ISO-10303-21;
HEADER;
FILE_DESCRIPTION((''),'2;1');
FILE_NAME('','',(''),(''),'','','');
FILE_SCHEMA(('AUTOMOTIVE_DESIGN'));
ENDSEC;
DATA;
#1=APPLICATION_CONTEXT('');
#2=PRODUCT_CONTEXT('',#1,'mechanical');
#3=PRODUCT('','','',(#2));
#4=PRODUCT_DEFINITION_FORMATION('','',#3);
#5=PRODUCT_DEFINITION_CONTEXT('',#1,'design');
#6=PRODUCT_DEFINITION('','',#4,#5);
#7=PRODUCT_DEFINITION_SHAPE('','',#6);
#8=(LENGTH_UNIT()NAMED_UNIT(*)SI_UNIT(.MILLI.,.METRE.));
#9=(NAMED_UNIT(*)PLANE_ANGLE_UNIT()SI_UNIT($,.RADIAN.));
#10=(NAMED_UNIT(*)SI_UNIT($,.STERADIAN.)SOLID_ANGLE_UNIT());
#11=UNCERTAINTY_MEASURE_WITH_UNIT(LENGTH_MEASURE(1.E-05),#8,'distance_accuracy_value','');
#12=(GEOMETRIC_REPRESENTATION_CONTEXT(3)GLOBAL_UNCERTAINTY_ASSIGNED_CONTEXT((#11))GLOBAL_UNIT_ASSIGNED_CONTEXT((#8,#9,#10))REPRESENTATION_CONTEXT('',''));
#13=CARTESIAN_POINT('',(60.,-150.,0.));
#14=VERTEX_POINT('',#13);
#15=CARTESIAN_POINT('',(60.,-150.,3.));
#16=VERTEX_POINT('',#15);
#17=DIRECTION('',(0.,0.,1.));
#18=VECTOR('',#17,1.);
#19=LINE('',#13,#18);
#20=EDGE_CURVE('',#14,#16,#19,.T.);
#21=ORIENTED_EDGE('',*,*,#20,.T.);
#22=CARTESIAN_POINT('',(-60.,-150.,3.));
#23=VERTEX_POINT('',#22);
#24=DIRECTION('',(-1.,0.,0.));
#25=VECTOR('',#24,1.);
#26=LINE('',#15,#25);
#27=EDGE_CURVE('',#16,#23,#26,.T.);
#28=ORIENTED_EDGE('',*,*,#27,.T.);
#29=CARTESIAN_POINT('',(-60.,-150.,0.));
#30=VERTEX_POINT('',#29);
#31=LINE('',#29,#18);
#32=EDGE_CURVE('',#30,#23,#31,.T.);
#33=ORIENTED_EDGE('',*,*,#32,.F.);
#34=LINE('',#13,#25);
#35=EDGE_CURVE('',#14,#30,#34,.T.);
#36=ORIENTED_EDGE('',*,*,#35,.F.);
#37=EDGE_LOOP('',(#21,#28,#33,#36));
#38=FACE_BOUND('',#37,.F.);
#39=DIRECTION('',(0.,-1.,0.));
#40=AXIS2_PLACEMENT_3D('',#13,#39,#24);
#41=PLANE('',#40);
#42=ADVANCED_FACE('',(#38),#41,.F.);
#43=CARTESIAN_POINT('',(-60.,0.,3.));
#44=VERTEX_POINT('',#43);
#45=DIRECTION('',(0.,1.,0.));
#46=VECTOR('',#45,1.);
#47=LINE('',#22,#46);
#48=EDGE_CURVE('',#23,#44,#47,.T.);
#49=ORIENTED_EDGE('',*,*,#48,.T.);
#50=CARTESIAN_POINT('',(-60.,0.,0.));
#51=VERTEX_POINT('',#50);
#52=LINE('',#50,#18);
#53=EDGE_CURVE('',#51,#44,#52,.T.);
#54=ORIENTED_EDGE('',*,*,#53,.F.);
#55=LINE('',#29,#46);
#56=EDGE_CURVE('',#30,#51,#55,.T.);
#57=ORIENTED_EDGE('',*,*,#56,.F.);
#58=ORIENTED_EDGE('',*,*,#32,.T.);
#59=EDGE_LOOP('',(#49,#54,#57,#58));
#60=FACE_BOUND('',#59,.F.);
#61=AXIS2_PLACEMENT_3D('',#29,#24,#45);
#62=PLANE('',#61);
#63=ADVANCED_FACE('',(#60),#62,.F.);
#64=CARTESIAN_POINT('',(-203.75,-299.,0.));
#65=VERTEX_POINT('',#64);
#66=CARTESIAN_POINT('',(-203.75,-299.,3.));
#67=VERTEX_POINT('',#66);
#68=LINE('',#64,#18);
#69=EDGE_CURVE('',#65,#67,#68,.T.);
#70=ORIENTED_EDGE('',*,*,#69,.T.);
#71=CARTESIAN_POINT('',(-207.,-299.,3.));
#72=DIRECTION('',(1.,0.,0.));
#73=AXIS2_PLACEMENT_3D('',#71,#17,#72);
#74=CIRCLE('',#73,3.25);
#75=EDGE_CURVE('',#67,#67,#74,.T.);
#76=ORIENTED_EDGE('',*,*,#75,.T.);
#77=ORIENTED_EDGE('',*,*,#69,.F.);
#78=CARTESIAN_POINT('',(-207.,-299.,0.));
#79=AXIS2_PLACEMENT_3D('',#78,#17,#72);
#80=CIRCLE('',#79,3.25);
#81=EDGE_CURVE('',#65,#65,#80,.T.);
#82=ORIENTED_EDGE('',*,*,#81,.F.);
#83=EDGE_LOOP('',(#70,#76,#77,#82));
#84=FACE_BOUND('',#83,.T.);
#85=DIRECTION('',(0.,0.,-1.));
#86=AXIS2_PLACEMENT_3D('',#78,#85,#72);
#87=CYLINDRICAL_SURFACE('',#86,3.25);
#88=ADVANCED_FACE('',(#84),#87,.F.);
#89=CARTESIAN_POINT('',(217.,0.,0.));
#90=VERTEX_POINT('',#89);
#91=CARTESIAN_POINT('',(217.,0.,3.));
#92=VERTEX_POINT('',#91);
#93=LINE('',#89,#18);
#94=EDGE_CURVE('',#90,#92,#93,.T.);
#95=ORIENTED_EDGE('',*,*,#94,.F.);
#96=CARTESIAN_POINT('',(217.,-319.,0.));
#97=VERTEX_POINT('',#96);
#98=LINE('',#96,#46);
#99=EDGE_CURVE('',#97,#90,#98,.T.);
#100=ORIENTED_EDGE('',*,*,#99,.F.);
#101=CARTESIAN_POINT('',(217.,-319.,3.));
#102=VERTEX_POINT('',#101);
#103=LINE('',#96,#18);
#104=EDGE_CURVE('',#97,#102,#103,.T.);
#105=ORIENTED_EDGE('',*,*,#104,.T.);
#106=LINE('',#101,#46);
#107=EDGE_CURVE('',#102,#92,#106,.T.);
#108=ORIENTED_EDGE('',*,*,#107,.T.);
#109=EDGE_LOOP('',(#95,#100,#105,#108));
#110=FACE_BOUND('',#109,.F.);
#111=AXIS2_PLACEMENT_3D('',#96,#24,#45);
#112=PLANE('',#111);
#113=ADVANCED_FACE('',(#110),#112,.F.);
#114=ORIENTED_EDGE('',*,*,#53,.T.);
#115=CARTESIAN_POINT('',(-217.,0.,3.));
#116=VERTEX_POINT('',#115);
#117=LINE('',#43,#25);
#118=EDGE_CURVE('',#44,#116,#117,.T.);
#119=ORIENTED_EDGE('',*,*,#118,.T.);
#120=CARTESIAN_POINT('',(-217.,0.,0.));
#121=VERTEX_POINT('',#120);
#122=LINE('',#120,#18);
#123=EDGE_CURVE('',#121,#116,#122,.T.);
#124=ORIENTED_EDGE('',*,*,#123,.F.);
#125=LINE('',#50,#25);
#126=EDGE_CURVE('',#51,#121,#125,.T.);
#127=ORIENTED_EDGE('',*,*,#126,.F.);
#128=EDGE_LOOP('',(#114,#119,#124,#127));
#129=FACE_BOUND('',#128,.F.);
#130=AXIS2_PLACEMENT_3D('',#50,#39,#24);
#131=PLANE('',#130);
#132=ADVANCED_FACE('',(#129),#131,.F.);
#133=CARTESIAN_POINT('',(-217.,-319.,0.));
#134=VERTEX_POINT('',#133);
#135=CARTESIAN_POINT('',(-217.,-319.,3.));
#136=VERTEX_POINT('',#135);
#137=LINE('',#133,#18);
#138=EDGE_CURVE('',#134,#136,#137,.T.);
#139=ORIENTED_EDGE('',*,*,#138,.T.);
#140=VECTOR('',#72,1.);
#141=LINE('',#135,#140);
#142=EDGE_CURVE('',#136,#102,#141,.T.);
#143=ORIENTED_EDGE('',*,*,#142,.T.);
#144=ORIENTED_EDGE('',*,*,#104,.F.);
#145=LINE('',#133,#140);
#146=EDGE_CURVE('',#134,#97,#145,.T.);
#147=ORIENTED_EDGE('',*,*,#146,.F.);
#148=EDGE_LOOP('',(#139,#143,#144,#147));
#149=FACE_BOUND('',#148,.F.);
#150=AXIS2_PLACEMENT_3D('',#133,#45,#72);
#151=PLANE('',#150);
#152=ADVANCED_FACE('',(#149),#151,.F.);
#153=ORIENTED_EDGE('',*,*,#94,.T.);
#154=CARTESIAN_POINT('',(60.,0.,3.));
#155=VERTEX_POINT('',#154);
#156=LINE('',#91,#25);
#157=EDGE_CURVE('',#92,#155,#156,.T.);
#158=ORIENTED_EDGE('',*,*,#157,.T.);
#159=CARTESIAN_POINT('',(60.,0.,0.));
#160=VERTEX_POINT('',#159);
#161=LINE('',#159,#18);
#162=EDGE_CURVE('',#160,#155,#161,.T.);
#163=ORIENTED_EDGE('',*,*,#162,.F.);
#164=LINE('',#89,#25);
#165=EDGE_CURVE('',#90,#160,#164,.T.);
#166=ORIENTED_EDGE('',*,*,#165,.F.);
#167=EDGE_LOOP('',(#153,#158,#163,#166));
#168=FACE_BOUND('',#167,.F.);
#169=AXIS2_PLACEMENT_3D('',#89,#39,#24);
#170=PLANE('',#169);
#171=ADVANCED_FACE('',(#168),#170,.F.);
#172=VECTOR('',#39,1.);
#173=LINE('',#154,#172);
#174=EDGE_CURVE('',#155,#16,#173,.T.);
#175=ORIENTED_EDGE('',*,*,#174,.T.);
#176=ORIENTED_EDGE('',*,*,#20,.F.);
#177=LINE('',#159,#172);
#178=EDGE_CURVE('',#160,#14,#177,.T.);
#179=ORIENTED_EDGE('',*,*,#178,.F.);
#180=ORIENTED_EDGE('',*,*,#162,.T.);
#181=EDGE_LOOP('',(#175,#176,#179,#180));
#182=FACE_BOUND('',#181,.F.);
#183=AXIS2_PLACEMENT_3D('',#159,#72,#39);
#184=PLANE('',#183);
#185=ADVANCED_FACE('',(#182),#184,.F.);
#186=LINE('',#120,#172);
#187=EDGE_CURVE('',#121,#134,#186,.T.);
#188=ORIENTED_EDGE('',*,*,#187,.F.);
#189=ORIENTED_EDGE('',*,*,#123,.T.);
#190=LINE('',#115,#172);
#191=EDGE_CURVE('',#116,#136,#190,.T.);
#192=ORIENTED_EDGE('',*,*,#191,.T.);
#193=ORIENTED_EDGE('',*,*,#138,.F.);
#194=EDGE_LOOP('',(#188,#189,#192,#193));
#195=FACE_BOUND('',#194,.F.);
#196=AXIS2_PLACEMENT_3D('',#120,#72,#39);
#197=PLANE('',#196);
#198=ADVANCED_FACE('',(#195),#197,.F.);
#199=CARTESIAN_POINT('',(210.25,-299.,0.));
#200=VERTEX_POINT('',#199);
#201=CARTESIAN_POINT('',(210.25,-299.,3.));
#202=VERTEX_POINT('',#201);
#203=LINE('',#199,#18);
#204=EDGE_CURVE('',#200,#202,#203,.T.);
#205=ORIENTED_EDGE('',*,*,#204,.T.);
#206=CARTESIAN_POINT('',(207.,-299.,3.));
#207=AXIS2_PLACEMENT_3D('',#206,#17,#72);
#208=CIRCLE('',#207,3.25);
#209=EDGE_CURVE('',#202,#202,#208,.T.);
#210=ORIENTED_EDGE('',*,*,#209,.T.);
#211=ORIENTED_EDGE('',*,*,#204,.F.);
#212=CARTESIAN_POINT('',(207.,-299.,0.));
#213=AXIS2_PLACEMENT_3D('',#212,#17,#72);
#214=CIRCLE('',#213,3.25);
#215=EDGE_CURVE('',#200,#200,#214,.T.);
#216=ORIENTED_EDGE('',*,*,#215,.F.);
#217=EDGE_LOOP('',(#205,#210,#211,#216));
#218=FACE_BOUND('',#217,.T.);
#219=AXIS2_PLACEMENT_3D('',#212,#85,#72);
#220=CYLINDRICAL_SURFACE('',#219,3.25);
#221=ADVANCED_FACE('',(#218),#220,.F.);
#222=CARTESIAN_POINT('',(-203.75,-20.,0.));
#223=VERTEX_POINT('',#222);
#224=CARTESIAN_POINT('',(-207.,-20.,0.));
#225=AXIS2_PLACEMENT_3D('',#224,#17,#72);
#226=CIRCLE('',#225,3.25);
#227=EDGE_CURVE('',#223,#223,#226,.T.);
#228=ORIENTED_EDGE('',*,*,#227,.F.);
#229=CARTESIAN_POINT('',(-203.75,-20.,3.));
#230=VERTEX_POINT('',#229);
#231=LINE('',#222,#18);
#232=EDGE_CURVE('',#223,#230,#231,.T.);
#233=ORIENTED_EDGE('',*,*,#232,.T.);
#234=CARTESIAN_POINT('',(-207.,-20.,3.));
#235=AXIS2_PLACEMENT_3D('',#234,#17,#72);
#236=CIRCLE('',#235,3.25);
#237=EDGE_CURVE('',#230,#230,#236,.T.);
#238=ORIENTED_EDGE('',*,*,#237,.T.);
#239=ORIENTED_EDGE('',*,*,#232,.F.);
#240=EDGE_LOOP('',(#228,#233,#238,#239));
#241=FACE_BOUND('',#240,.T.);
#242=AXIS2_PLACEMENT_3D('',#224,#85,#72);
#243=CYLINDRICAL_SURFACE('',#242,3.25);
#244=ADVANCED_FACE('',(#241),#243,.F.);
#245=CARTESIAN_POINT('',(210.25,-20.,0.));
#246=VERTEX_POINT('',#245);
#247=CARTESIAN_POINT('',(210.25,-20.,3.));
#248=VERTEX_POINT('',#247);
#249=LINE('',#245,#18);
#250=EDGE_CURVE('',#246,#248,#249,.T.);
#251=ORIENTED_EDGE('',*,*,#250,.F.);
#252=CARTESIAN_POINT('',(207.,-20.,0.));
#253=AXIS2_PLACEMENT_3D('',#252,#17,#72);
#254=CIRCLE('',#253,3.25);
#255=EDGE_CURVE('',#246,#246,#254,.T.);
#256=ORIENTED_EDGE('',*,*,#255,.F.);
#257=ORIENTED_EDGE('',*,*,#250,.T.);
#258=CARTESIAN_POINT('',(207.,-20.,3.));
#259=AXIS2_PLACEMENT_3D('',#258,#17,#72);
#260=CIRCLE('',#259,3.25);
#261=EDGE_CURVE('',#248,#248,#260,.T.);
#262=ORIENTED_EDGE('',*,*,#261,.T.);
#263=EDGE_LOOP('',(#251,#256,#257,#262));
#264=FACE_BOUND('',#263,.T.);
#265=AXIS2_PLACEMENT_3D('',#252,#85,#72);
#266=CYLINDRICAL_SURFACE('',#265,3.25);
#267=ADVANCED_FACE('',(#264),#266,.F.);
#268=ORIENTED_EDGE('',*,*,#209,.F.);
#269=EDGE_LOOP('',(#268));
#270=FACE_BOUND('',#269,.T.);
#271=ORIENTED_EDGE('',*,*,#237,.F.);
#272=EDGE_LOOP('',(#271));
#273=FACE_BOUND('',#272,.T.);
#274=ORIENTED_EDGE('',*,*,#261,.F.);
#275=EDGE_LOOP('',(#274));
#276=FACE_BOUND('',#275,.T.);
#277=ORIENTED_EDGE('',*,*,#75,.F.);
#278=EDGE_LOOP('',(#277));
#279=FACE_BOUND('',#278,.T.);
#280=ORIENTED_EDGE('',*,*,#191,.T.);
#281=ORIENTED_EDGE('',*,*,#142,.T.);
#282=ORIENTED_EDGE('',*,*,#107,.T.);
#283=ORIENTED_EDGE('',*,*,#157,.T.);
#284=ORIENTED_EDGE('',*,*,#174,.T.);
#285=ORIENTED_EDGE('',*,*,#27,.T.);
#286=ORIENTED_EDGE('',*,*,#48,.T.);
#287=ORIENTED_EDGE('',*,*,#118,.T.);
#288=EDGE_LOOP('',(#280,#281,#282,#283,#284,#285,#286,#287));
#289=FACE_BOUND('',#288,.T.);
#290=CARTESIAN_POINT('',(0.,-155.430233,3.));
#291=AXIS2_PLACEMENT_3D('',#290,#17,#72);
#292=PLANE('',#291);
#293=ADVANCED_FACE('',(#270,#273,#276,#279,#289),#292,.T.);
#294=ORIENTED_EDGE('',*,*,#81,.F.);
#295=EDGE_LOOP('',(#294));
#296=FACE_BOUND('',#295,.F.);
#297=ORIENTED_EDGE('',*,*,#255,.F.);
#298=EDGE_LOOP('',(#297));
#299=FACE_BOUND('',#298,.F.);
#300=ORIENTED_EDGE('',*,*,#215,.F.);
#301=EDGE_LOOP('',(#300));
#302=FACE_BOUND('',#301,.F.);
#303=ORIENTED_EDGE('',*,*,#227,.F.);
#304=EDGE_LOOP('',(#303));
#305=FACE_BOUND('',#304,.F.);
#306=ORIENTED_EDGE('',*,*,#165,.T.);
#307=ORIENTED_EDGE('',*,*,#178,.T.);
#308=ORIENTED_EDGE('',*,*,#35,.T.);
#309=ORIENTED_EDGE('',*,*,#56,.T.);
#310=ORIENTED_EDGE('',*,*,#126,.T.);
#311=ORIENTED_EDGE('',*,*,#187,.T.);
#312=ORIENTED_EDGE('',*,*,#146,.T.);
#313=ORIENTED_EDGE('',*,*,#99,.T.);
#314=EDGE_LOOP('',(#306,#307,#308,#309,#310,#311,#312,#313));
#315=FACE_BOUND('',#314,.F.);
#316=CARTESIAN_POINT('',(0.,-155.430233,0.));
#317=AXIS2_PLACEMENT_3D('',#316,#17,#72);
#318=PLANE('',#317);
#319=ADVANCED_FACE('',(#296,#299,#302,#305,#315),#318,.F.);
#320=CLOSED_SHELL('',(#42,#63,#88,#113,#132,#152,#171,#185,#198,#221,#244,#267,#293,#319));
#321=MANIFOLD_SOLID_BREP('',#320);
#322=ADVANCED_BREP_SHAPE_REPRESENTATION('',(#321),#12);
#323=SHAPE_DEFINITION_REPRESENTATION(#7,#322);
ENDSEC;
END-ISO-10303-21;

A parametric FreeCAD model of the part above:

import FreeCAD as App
import Part
import Sketcher

V = App.Vector

doc = App.newDocument("Part")
body = doc.addObject("PartDesign::Body", "Body")

sketch1 = doc.addObject("Sketcher::SketchObject", "Sketch")
body.addObject(sketch1)
sketch1.AttachmentSupport = (doc.XY_Plane, [""])
sketch1.MapMode = "FlatFace"
sketch1.addGeometry(Part.LineSegment(V(-60, 0, 0), V(-217, 0, 0)), False)
sketch1.addGeometry(Part.LineSegment(V(-217, 0, 0), V(-217, -319, 0)), False)
sketch1.addGeometry(Part.LineSegment(V(-217, -319, 0), V(217, -319, 0)), False)
sketch1.addGeometry(Part.LineSegment(V(217, -319, 0), V(217, 0, 0)), False)
sketch1.addGeometry(Part.LineSegment(V(217, 0, 0), V(60, 0, 0)), False)
sketch1.addGeometry(Part.LineSegment(V(60, 0, 0), V(60, -150, 0)), False)
sketch1.addGeometry(Part.LineSegment(V(60, -150, 0), V(-60, -150, 0)), False)
sketch1.addGeometry(Part.LineSegment(V(-60, -150, 0), V(-60, 0, 0)), False)
sketch1.addGeometry(Part.Circle(V(-207, -299, 0), V(0, 0, 1), 3.2), False)
sketch1.addGeometry(Part.Circle(V(207, -299, 0), V(0, 0, 1), 3.2), False)
sketch1.addGeometry(Part.Circle(V(-207, -20, 0), V(0, 0, 1), 3.2), False)
sketch1.addGeometry(Part.Circle(V(207, -20, 0), V(0, 0, 1), 3.2), False)
sketch1.addConstraint(Sketcher.Constraint("Coincident", 0, 2, 1, 1))
sketch1.addConstraint(Sketcher.Constraint("Coincident", 1, 2, 2, 1))
sketch1.addConstraint(Sketcher.Constraint("Coincident", 2, 2, 3, 1))
sketch1.addConstraint(Sketcher.Constraint("Coincident", 3, 2, 4, 1))
sketch1.addConstraint(Sketcher.Constraint("Coincident", 4, 2, 5, 1))
sketch1.addConstraint(Sketcher.Constraint("Coincident", 5, 2, 6, 1))
sketch1.addConstraint(Sketcher.Constraint("Coincident", 6, 2, 7, 1))
sketch1.addConstraint(Sketcher.Constraint("Coincident", 7, 2, 0, 1))
sketch1.addConstraint(Sketcher.Constraint("Horizontal", 0))
sketch1.addConstraint(Sketcher.Constraint("Vertical", 1))
sketch1.addConstraint(Sketcher.Constraint("Horizontal", 2))
sketch1.addConstraint(Sketcher.Constraint("Vertical", 3))
sketch1.addConstraint(Sketcher.Constraint("Horizontal", 4))
sketch1.addConstraint(Sketcher.Constraint("Vertical", 5))
sketch1.addConstraint(Sketcher.Constraint("Horizontal", 6))
sketch1.addConstraint(Sketcher.Constraint("Vertical", 7))
sketch1.addConstraint(Sketcher.Constraint("Equal", 8, 9))
sketch1.addConstraint(Sketcher.Constraint("Equal", 9, 10))
sketch1.addConstraint(Sketcher.Constraint("Equal", 10, 11))
sketch1.addConstraint(Sketcher.Constraint("Symmetric", 0, 2, 3, 2, -1, 1))
sketch1.addConstraint(Sketcher.Constraint("Symmetric", 8, 3, 9, 3, -2))
sketch1.addConstraint(Sketcher.Constraint("Symmetric", 10, 3, 11, 3, -2))
sketch1.addConstraint(Sketcher.Constraint("Symmetric", 4, 2, 7, 2, -2))
sketch1.addConstraint(Sketcher.Constraint("Vertical", 8, 3, 10, 3))
sketch1.addConstraint(Sketcher.Constraint("Diameter", 8, 6.5))
sketch1.addConstraint(Sketcher.Constraint("DistanceX", 0, 2, 0, 1, 157.0))
sketch1.addConstraint(Sketcher.Constraint("DistanceX", 2, 1, 2, 2, 434.0))
sketch1.addConstraint(Sketcher.Constraint("DistanceY", 1, 2, 1, 1, 319.0))
sketch1.addConstraint(Sketcher.Constraint("DistanceY", 5, 2, 5, 1, 150.0))
sketch1.addConstraint(Sketcher.Constraint("DistanceX", 8, 3, -1, 1, 207.0))
sketch1.addConstraint(Sketcher.Constraint("DistanceY", 8, 3, -1, 1, 299.0))
sketch1.addConstraint(Sketcher.Constraint("DistanceY", 10, 3, -1, 1, 20.0))
pad1 = doc.addObject("PartDesign::Pad", "Pad")
body.addObject(pad1)
pad1.Profile = sketch1
pad1.Length = 3

doc.recompute()
